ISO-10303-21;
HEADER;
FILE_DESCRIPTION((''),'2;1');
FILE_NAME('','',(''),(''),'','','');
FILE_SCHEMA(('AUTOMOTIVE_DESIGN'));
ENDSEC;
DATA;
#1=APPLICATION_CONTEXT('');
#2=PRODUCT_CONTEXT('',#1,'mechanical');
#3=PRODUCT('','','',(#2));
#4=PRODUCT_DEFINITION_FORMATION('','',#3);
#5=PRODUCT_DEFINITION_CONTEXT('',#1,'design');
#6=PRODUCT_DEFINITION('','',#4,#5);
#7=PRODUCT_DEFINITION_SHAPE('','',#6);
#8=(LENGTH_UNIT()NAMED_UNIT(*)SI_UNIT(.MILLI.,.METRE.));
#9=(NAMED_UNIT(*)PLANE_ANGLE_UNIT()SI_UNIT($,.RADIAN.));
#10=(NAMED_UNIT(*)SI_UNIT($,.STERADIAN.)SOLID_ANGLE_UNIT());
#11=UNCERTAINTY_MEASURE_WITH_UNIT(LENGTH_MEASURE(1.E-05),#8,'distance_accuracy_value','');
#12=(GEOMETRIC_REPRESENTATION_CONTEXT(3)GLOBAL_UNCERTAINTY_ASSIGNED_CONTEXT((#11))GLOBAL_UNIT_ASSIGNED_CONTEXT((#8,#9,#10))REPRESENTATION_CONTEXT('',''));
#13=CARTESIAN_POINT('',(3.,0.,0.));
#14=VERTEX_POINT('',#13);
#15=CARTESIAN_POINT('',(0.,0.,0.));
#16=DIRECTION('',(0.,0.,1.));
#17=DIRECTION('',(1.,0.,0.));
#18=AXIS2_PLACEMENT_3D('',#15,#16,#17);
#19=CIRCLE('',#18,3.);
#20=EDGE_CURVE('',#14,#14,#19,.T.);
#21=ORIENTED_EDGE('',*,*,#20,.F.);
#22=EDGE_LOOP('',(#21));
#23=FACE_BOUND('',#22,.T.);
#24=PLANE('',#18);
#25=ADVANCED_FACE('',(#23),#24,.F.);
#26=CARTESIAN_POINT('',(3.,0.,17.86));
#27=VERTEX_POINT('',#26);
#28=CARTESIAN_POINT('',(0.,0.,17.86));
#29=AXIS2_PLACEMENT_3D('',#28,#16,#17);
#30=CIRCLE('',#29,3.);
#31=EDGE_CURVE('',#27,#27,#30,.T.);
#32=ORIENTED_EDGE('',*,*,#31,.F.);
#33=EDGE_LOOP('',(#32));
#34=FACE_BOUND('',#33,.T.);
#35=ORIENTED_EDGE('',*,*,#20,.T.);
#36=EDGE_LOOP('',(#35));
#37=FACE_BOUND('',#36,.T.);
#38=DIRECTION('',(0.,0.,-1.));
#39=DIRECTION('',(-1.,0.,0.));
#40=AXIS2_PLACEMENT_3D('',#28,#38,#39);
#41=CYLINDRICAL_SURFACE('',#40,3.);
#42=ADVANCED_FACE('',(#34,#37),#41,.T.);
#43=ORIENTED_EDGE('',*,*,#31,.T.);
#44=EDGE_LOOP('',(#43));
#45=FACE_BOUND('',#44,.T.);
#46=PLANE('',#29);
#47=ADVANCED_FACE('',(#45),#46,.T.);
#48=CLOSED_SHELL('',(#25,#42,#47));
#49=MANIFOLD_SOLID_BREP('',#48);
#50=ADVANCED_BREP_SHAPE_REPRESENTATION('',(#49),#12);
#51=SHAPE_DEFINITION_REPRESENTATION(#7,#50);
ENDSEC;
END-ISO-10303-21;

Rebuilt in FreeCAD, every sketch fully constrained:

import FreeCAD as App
import Part
import Sketcher

doc = App.newDocument("Part")
body = doc.addObject("PartDesign::Body", "Body")

# Sketch on XY plane
sketch1 = doc.addObject("Sketcher::SketchObject", "Sketch")
body.addObject(sketch1)
sketch1.AttachmentSupport = (doc.XY_Plane, [""])
sketch1.MapMode = "FlatFace"
sketch1.addGeometry(Part.Circle(App.Vector(0, 0, 0), App.Vector(0, 0, 1), 3), False)
sketch1.addConstraint([
    Sketcher.Constraint("Coincident", 0, 3, -1, 1),
    Sketcher.Constraint("Diameter", 0, 6.0),
])
pad1 = doc.addObject("PartDesign::Pad", "Pad")
body.addObject(pad1)
pad1.Profile = sketch1
pad1.Length = 17.86

doc.recompute()
